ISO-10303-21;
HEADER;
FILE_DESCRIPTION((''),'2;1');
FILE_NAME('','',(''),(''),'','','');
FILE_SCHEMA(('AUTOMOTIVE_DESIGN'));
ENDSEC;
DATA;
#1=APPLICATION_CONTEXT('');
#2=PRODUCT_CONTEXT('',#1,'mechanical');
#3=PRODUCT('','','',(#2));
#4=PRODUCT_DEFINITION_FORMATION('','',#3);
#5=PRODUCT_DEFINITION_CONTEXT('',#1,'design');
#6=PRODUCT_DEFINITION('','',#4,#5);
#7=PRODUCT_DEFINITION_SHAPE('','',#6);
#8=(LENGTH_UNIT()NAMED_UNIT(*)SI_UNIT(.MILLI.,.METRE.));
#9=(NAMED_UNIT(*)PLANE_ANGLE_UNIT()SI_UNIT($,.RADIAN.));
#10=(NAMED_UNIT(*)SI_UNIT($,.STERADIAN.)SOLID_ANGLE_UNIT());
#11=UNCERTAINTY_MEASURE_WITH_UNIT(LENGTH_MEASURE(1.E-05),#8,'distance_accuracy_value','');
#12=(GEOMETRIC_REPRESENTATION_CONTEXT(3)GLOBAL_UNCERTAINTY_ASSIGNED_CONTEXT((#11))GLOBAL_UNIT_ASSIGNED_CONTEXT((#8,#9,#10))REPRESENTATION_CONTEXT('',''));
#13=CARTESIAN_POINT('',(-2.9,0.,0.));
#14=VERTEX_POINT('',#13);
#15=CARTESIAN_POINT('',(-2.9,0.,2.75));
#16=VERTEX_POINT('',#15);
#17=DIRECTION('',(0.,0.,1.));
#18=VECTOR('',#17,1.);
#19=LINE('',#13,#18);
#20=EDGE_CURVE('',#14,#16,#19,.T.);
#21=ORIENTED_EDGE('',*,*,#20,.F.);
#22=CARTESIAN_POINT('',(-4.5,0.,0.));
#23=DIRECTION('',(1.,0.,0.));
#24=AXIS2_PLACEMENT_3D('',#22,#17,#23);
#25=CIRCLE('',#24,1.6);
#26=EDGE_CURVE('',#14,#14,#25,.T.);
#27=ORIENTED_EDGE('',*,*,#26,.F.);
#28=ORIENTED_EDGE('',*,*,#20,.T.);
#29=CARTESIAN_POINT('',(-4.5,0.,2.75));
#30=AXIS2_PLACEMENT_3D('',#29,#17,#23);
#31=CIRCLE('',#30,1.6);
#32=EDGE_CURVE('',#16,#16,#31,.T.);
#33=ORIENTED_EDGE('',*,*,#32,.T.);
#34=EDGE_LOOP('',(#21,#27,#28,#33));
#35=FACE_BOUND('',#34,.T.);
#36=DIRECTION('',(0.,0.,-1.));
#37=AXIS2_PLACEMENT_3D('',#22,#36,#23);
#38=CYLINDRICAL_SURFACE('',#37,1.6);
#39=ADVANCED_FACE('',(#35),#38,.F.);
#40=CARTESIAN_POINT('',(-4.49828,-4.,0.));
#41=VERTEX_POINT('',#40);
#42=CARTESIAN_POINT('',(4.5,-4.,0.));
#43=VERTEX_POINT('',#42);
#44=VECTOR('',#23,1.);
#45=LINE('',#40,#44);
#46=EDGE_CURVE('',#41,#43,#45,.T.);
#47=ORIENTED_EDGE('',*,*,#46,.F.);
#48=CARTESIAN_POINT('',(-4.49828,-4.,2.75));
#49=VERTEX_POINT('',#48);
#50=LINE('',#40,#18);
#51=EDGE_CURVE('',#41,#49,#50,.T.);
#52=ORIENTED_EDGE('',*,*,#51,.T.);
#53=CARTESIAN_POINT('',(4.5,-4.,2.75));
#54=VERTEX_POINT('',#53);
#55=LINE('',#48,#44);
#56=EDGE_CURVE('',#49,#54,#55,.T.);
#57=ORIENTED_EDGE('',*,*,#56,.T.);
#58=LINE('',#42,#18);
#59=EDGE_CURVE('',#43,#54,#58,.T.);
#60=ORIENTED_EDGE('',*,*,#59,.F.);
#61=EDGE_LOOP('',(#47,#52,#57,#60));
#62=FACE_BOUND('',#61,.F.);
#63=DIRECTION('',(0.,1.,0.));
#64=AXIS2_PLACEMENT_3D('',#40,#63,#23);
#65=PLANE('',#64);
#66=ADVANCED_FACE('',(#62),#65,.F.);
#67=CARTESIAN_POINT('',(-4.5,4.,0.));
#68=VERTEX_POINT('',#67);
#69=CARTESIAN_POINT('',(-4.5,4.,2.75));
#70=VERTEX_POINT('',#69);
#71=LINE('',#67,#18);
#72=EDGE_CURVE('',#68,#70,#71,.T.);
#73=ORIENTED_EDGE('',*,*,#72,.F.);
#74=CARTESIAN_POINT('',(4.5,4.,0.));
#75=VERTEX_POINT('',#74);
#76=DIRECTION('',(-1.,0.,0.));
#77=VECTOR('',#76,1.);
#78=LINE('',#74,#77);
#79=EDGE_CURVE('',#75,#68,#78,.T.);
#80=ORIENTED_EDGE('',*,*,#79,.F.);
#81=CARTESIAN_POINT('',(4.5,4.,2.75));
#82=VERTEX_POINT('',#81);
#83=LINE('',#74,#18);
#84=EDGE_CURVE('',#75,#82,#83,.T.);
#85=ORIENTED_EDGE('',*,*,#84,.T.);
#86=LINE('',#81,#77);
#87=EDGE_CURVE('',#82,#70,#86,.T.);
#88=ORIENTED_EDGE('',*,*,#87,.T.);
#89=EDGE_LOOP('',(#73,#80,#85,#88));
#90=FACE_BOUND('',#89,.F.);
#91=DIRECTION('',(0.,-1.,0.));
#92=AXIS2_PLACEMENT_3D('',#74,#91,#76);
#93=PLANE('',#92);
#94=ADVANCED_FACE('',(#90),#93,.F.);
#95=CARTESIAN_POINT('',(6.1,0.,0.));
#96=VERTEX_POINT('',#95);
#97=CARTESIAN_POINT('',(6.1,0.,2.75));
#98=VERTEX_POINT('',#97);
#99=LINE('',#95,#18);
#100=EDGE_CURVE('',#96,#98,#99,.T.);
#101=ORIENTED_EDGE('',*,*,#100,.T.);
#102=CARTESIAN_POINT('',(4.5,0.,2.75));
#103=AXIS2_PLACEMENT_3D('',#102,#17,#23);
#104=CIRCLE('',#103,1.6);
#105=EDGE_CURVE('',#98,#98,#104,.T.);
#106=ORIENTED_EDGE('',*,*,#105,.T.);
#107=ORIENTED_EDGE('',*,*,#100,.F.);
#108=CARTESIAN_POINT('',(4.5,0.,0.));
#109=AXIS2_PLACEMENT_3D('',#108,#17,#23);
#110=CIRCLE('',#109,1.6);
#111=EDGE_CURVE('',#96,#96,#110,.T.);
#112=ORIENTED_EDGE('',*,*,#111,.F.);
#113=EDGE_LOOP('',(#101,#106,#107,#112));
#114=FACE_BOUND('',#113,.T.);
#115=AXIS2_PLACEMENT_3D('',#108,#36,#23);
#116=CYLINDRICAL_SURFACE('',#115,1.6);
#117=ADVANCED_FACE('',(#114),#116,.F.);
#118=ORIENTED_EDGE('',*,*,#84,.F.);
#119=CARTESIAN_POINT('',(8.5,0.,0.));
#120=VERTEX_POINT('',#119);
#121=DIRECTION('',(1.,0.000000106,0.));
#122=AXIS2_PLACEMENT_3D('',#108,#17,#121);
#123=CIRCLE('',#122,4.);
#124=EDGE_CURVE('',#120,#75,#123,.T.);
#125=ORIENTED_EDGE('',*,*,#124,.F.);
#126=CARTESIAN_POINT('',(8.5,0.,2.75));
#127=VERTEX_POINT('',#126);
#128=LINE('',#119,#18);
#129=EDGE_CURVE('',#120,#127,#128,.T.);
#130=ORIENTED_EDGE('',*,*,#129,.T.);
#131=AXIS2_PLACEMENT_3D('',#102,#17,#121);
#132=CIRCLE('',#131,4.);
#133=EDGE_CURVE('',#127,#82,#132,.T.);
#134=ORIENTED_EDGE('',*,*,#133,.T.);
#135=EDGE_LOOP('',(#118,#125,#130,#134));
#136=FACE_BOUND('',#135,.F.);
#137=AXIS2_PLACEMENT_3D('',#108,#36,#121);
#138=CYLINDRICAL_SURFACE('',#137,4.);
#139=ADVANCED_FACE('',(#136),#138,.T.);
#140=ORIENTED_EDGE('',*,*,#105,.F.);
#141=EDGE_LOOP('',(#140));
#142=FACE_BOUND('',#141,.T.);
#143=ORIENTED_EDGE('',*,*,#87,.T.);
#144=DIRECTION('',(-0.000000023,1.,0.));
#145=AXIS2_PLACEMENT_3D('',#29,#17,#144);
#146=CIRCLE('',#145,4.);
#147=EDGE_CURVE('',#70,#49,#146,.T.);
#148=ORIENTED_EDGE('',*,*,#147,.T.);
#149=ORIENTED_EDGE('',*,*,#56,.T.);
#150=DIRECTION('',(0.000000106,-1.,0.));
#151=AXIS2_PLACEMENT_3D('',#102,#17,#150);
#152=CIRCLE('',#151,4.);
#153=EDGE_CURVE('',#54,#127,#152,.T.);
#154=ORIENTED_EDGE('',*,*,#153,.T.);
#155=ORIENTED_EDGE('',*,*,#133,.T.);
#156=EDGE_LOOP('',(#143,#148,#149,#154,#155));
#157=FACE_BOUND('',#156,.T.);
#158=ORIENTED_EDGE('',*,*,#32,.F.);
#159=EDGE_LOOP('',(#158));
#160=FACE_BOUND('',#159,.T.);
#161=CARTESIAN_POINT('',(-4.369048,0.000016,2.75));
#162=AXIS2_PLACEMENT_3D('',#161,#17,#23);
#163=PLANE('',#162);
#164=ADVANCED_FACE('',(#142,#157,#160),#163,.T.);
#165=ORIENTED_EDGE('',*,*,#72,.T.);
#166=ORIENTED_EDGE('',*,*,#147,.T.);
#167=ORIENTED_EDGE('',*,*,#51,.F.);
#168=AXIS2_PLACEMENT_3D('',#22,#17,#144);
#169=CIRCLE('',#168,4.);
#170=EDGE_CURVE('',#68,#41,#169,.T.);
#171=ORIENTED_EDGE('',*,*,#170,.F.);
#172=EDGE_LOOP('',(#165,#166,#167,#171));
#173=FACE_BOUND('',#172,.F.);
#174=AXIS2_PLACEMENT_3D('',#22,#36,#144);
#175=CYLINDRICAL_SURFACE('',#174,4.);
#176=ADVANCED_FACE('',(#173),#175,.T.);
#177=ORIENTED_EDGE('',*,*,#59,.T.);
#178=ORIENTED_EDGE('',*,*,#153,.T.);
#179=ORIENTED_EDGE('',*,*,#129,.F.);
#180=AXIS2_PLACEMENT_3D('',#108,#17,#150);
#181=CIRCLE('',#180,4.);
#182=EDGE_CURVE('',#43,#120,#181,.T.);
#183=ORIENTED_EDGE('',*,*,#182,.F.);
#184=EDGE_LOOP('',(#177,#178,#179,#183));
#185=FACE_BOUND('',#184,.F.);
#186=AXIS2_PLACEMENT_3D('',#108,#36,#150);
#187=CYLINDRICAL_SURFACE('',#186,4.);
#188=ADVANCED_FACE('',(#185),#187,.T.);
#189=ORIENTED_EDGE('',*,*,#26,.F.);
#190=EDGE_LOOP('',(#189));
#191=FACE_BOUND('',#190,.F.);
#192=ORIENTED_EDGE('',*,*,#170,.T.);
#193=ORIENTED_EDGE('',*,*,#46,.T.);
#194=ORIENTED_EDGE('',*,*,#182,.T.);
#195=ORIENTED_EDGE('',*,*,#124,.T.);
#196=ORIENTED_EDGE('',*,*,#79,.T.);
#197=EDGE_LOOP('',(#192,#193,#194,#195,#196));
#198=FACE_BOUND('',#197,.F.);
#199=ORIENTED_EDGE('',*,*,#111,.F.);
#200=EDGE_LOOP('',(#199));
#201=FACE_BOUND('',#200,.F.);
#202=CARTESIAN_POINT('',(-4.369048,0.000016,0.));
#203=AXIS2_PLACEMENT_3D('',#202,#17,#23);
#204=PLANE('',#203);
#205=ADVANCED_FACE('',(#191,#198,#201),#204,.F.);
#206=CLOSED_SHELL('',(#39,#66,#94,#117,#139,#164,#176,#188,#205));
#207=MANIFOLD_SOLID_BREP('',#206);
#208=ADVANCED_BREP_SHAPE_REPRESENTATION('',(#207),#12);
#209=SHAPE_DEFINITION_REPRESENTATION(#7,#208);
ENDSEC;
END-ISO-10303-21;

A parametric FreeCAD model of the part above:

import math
import FreeCAD as App
import Part
import Sketcher

V = App.Vector

doc = App.newDocument("Part")
body = doc.addObject("PartDesign::Body", "Body")

# Sketch on XY plane
sketch1 = doc.addObject("Sketcher::SketchObject", "Sketch")
body.addObject(sketch1)
sketch1.AttachmentSupport = (doc.XY_Plane, [""])
sketch1.MapMode = "FlatFace"
sketch1.addGeometry([
    Part.ArcOfCircle(Part.Circle(V(-4.5, 0, 0), V(0, 0, 1), 4), math.radians(90), math.radians(270)),  # 0
    Part.LineSegment(V(-4.5, -4, 0), V(4.5, -4, 0)),  # 1
    Part.ArcOfCircle(Part.Circle(V(4.5, 0, 0), V(0, 0, 1), 4), math.radians(-90), math.radians(0)),  # 2
    Part.ArcOfCircle(Part.Circle(V(4.5, 0, 0), V(0, 0, 1), 4), math.radians(0), math.radians(90)),  # 3
    Part.LineSegment(V(4.5, 4, 0), V(-4.5, 4, 0)),  # 4
    Part.Circle(V(-4.5, 0, 0), V(0, 0, 1), 1.6),  # 5
    Part.Circle(V(4.5, 0, 0), V(0, 0, 1), 1.6),  # 6
], False)
sketch1.addConstraint([
    Sketcher.Constraint("Coincident", 0, 2, 1, 1),
    Sketcher.Constraint("Tangent", 1, 2, 2, 1),
    Sketcher.Constraint("Tangent", 2, 2, 3, 1),
    Sketcher.Constraint("Tangent", 3, 2, 4, 1),
    Sketcher.Constraint("Tangent", 4, 2, 0, 1),
    Sketcher.Constraint("Horizontal", 1),
    Sketcher.Constraint("Horizontal", 4),
    Sketcher.Constraint("Coincident", 5, 3, 0, 3),
    Sketcher.Constraint("Coincident", 6, 3, 2, 3),
    Sketcher.Constraint("Equal", 0, 2),
    Sketcher.Constraint("Equal", 5, 6),
    Sketcher.Constraint("Symmetric", 0, 3, 2, 3, -1, 1),
    Sketcher.Constraint("PointOnObject", 2, 2, -1),
    Sketcher.Constraint("Radius", 0, 4.0),
    Sketcher.Constraint("Diameter", 5, 3.2),
    Sketcher.Constraint("DistanceX", 4, 2, 4, 1, 9.0),
    Sketcher.Constraint("DistanceX", 1, 1, 1, 2, 8.99828),
])
pad1 = doc.addObject("PartDesign::Pad", "Pad")
body.addObject(pad1)
pad1.Profile = sketch1
pad1.Length = 2.75

doc.recompute()
